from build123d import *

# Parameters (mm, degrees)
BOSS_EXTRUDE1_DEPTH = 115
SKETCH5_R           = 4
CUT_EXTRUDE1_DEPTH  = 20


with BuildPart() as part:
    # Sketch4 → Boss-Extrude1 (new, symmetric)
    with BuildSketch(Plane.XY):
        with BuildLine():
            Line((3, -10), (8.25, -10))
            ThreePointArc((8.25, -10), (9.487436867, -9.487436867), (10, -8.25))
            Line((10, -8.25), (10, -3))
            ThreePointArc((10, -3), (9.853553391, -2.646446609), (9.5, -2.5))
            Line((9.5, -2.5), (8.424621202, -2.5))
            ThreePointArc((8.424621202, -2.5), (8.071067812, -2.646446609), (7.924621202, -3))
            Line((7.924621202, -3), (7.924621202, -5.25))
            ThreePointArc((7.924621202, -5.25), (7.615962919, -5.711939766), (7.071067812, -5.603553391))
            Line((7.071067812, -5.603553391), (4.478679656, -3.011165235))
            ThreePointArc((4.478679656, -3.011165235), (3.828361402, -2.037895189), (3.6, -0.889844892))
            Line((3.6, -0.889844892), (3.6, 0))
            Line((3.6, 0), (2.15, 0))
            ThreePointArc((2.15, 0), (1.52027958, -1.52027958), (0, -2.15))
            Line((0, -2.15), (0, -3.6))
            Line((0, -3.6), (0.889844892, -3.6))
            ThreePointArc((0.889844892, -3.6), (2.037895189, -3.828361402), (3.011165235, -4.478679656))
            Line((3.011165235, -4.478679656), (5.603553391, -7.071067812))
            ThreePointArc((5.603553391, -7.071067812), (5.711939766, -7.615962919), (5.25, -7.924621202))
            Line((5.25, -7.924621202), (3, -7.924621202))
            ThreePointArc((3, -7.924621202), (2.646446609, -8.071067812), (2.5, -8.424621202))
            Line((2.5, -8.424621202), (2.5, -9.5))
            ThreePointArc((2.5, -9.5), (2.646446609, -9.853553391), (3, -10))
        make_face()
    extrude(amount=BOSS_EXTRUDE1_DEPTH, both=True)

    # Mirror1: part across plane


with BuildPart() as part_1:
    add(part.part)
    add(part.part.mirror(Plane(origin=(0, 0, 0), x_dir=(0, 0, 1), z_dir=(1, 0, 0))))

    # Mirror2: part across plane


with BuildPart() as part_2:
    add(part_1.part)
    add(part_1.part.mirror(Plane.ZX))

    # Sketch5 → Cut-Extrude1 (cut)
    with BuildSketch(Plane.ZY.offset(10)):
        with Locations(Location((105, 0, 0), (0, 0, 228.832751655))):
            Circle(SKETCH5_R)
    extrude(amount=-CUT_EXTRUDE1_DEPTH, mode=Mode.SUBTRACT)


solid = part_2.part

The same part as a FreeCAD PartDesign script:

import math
import FreeCAD as App
import Part
import Sketcher

doc = App.newDocument("Part")
body = doc.addObject("PartDesign::Body", "Body")

# Sketch on XY plane
sketch1 = body.newObject("Sketcher::SketchObject", "Sketch")
sketch1.AttachmentSupport = (doc.getObject("XY_Plane"), [""])
sketch1.MapMode = "FlatFace"
sketch1.addGeometry([
    Part.LineSegment(App.Vector(3, -10, 0), App.Vector(8.25, -10, 0)),  # 0
    Part.ArcOfCircle(Part.Circle(App.Vector(8.25, -8.25, 0), App.Vector(0, 0, 1), 1.75), math.radians(-90), math.radians(0)),  # 1
    Part.LineSegment(App.Vector(10, -8.25, 0), App.Vector(10, -3, 0)),  # 2
    Part.ArcOfCircle(Part.Circle(App.Vector(9.5, -3, 0), App.Vector(0, 0, 1), 0.5), math.radians(0), math.radians(90)),  # 3
    Part.LineSegment(App.Vector(9.5, -2.5, 0), App.Vector(8.42, -2.5, 0)),  # 4
    Part.ArcOfCircle(Part.Circle(App.Vector(8.42, -3, 0), App.Vector(0, 0, 1), 0.5), math.radians(90), math.radians(180)),  # 5
    Part.LineSegment(App.Vector(7.92, -3, 0), App.Vector(7.92, -5.25, 0)),  # 6
    Part.ArcOfCircle(Part.Circle(App.Vector(7.42, -5.25, 0), App.Vector(0, 0, 1), 0.5), math.radians(-135), math.radians(0)),  # 7
    Part.LineSegment(App.Vector(7.07, -5.6, 0), App.Vector(4.48, -3.01, 0)),  # 8
    Part.ArcOfCircle(Part.Circle(App.Vector(6.6, -0.89, 0), App.Vector(0, 0, 1), 3), math.radians(180), math.radians(225)),  # 9
    Part.LineSegment(App.Vector(3.6, -0.89, 0), App.Vector(3.6, 0, 0)),  # 10
    Part.LineSegment(App.Vector(3.6, 0, 0), App.Vector(2.15, 0, 0)),  # 11
    Part.ArcOfCircle(Part.Circle(App.Vector(0, 0, 0), App.Vector(0, 0, 1), 2.15), math.radians(-90), math.radians(0)),  # 12
    Part.LineSegment(App.Vector(0, -2.15, 0), App.Vector(0, -3.6, 0)),  # 13
    Part.LineSegment(App.Vector(0, -3.6, 0), App.Vector(0.89, -3.6, 0)),  # 14
    Part.ArcOfCircle(Part.Circle(App.Vector(0.89, -6.6, 0), App.Vector(0, 0, 1), 3), math.radians(45), math.radians(90)),  # 15
    Part.LineSegment(App.Vector(3.01, -4.48, 0), App.Vector(5.6, -7.07, 0)),  # 16
    Part.ArcOfCircle(Part.Circle(App.Vector(5.25, -7.42, 0), App.Vector(0, 0, 1), 0.5), math.radians(-90), math.radians(45)),  # 17
    Part.LineSegment(App.Vector(5.25, -7.92, 0), App.Vector(3, -7.92, 0)),  # 18
    Part.ArcOfCircle(Part.Circle(App.Vector(3, -8.42, 0), App.Vector(0, 0, 1), 0.5), math.radians(90), math.radians(180)),  # 19
    Part.LineSegment(App.Vector(2.5, -8.42, 0), App.Vector(2.5, -9.5, 0)),  # 20
    Part.ArcOfCircle(Part.Circle(App.Vector(3, -9.5, 0), App.Vector(0, 0, 1), 0.5), math.radians(180), math.radians(270)),  # 21
], False)
sketch1.addConstraint([
    Sketcher.Constraint("Tangent", 0, 2, 1, 1),
    Sketcher.Constraint("Tangent", 1, 2, 2, 1),
    Sketcher.Constraint("Tangent", 2, 2, 3, 1),
    Sketcher.Constraint("Tangent", 3, 2, 4, 1),
    Sketcher.Constraint("Tangent", 4, 2, 5, 1),
    Sketcher.Constraint("Tangent", 5, 2, 6, 1),
    Sketcher.Constraint("Tangent", 6, 2, 7, 2),
    Sketcher.Constraint("Tangent", 7, 1, 8, 1),
    Sketcher.Constraint("Tangent", 8, 2, 9, 2),
    Sketcher.Constraint("Tangent", 9, 1, 10, 1),
    Sketcher.Constraint("Coincident", 10, 2, 11, 1),
    Sketcher.Constraint("Coincident", 11, 2, 12, 2),
    Sketcher.Constraint("Coincident", 12, 1, 13, 1),
    Sketcher.Constraint("Coincident", 13, 2, 14, 1),
    Sketcher.Constraint("Tangent", 14, 2, 15, 2),
    Sketcher.Constraint("Tangent", 15, 1, 16, 1),
    Sketcher.Constraint("Tangent", 16, 2, 17, 2),
    Sketcher.Constraint("Tangent", 17, 1, 18, 1),
    Sketcher.Constraint("Tangent", 18, 2, 19, 1),
    Sketcher.Constraint("Tangent", 19, 2, 20, 1),
    Sketcher.Constraint("Tangent", 20, 2, 21, 1),
    Sketcher.Constraint("Tangent", 21, 2, 0, 1),
    Sketcher.Constraint("Horizontal", 0),
    Sketcher.Constraint("Vertical", 2),
    Sketcher.Constraint("Horizontal", 4),
    Sketcher.Constraint("Vertical", 6),
    Sketcher.Constraint("Vertical", 10),
    Sketcher.Constraint("Horizontal", 11),
    Sketcher.Constraint("Vertical", 13),
    Sketcher.Constraint("Horizontal", 14),
    Sketcher.Constraint("Horizontal", 18),
    Sketcher.Constraint("Vertical", 20),
    Sketcher.Constraint("Coincident", 12, 3, -1, 1),
    Sketcher.Constraint("Equal", 3, 5),
    Sketcher.Constraint("Equal", 5, 7),
    Sketcher.Constraint("Equal", 9, 15),
    Sketcher.Constraint("Equal", 7, 17),
    Sketcher.Constraint("Equal", 17, 19),
    Sketcher.Constraint("Equal", 19, 21),
    Sketcher.Constraint("PointOnObject", 10, 2, -1),
    Sketcher.Constraint("PointOnObject", 12, 1, -2),
    Sketcher.Constraint("Parallel", 8, 16),
    Sketcher.Constraint("Equal", 0, 2),
    Sketcher.Constraint("Equal", 18, 6),
    Sketcher.Constraint("Equal", 14, 10),
    Sketcher.Constraint("Equal", 11, 13),
    Sketcher.Constraint("Equal", 4, 20),
    Sketcher.Constraint("Equal", 8, 16),
    Sketcher.Constraint("Radius", 9, 3.0),
    Sketcher.Constraint("Radius", 3, 0.5),
    Sketcher.Constraint("Radius", 1, 1.75),
    Sketcher.Constraint("Radius", 12, 2.15),
    Sketcher.Constraint("DistanceY", 3, 3, -1, 1, 3.0),
    Sketcher.Constraint("DistanceY", 0, 2, -1, 1, 10.0),
    Sketcher.Constraint("DistanceY", 1, 3, 7, 3, 3.0),
    Sketcher.Constraint("DistanceX", 11, 2, 11, 1, 1.45),
    Sketcher.Constraint("DistanceX", 4, 2, 4, 1, 1.075379),
])
pad1 = body.newObject("PartDesign::Pad", "Pad")
pad1.Profile = sketch1
pad1.Length = 230
pad1.Midplane = True
body2 = doc.addObject("PartDesign::Body", "Body001")
doc.recompute()

body2.BaseFeature = body
doc.recompute()

mirroring = doc.addObject("Part::Mirroring", "Mirroring")
mirroring.Source = body
mirroring.Base = App.Vector(0, 0, 0)
mirroring.Normal = App.Vector(1, 0, 0)
body3 = doc.addObject("PartDesign::Body", "Body002")
body3.BaseFeature = mirroring
boolean = body2.newObject("PartDesign::Boolean", "Boolean")
boolean.Type = "Fuse"
boolean.addObjects([body3])
doc.recompute()
body4 = doc.addObject("PartDesign::Body", "Body003")
doc.recompute()

body4.BaseFeature = body2
doc.recompute()

mirroring2 = doc.addObject("Part::Mirroring", "Mirroring001")
mirroring2.Source = body2
mirroring2.Base = App.Vector(0, 0, 0)
mirroring2.Normal = App.Vector(0, 1, 0)
body5 = doc.addObject("PartDesign::Body", "Body004")
body5.BaseFeature = mirroring2
boolean2 = body4.newObject("PartDesign::Boolean", "Boolean001")
boolean2.Type = "Fuse"
boolean2.addObjects([body5])
doc.recompute()

# Sketch on YZ plane
sketch2 = body4.newObject("Sketcher::SketchObject", "Sketch001")
sketch2.AttachmentSupport = (doc.getObject("YZ_Plane003"), [""])
sketch2.MapMode = "FlatFace"
sketch2.AttachmentOffset = App.Placement(App.Vector(0, 0, -10), App.Rotation())
sketch2.addGeometry(Part.Circle(App.Vector(0, 105, 0), App.Vector(0, 0, 1), 4), False)
sketch2.addConstraint([
    Sketcher.Constraint("PointOnObject", 0, 3, -2),
    Sketcher.Constraint("Diameter", 0, 8.0),
    Sketcher.Constraint("DistanceY", -1, 1, 0, 3, 105.0),
])
pocket1 = body4.newObject("PartDesign::Pocket", "Pocket")
pocket1.Profile = sketch2
pocket1.Length = 20
pocket1.Reversed = True
mirroring.Visibility = False
mirroring2.Visibility = False

doc.recompute()
